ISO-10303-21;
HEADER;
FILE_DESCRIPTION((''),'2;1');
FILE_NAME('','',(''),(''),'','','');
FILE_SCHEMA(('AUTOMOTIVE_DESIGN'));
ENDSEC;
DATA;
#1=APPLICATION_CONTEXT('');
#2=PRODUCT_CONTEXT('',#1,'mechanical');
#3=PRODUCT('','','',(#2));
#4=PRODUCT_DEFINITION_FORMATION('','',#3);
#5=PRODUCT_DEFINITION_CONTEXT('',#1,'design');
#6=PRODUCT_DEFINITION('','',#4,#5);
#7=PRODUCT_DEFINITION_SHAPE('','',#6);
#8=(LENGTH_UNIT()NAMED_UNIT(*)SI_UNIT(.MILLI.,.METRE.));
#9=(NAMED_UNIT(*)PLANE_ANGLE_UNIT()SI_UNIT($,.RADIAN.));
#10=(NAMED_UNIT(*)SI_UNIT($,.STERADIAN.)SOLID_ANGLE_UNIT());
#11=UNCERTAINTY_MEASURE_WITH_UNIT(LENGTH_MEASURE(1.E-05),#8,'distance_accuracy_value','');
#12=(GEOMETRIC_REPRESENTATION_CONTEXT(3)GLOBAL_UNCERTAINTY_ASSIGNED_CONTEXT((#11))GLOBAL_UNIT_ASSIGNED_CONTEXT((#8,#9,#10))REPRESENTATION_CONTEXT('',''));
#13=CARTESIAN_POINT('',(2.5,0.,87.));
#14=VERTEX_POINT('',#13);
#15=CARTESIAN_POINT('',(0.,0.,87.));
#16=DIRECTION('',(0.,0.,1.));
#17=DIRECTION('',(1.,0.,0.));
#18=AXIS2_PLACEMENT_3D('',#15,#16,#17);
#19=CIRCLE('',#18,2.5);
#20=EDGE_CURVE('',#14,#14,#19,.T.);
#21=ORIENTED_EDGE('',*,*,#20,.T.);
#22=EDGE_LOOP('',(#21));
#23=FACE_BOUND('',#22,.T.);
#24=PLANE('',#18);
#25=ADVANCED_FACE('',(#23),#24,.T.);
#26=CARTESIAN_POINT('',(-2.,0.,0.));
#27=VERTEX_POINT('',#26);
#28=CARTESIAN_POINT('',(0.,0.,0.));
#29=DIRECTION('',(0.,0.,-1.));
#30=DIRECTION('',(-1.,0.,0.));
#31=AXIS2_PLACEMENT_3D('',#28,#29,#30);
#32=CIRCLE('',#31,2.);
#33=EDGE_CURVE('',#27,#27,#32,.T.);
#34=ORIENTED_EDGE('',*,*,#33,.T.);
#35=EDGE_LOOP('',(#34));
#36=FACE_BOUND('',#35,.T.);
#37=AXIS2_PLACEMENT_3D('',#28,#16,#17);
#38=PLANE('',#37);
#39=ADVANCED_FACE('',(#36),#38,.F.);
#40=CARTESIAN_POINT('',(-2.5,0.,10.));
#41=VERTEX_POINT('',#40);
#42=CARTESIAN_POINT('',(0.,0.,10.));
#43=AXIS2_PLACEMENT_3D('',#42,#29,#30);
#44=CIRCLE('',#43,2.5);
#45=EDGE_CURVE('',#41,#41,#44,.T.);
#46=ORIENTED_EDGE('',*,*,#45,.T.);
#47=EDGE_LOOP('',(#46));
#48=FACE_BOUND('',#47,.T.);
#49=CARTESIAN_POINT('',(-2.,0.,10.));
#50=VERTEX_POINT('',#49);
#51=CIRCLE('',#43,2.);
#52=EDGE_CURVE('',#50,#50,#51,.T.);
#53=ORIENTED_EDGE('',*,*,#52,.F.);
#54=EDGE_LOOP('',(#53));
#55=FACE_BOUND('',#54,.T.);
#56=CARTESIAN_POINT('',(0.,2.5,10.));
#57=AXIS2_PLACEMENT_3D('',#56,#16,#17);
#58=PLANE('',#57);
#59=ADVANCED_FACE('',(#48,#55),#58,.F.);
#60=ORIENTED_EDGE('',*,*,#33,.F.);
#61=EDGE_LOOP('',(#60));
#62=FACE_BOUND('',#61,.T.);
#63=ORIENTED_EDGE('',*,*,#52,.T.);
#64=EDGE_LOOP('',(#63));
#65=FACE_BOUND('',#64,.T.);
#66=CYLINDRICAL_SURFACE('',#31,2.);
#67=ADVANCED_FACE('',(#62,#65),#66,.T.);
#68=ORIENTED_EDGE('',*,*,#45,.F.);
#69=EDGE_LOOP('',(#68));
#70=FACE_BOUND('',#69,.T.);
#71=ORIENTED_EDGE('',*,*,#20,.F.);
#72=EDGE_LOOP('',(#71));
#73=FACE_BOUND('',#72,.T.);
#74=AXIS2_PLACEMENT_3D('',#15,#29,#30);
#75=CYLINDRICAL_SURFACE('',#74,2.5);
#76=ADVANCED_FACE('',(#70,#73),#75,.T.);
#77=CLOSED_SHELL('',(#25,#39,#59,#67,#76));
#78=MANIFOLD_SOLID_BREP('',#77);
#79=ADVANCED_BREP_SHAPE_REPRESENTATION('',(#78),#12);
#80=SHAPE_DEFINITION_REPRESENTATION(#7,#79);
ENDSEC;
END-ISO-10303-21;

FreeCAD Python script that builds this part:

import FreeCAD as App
import Part
import Sketcher

V = App.Vector
Q = App.Units.Quantity


def add_polygon(sketch, points):
    """Adds a closed chain of lines whose ends are joined by coincident constraints."""
    first, n = sketch.GeometryCount, len(points)
    for a, b in zip(points, points[1:] + points[:1]):
        sketch.addGeometry(Part.LineSegment(App.Vector(*a, 0), App.Vector(*b, 0)), False)
    for i in range(n):
        sketch.addConstraint(Sketcher.Constraint("Coincident", first + i, 2, first + (i + 1) % n, 1))

doc = App.newDocument("Part")
params = doc.addObject("Spreadsheet::Sheet", "Params")
for row, (alias, value) in enumerate([
    ("sketch1_diameter", "5 mm"),
    ("pad1_length", "87 mm"),
    ("sketch2_height", "10 mm"),
    ("sketch2_width", "0.5 mm"),
    ("groove_angle", "360 deg"),
], start=1):
    params.set(f"A{row}", alias)
    params.set(f"B{row}", "=" + value)
    params.setAlias(f"B{row}", alias)

body = doc.addObject("PartDesign::Body", "Body")

# Sketch on XY plane
sketch1 = doc.addObject("Sketcher::SketchObject", "Sketch")
body.addObject(sketch1)
sketch1.AttachmentSupport = (doc.XY_Plane, [""])
sketch1.MapMode = "FlatFace"
sketch1.addGeometry(Part.Circle(V(0, 0, 0), V(0, 0, 1), 2.5), False)
sketch1.addConstraint(Sketcher.Constraint("Coincident", 0, 3, -1, 1))
sketch1.addConstraint(Sketcher.Constraint("Diameter", 0, Q("5 mm")))
sketch1.setExpression("Constraints[1]", "Params.sketch1_diameter")
pad1 = doc.addObject("PartDesign::Pad", "Pad")
body.addObject(pad1)
pad1.Profile = sketch1
pad1.setExpression("Length", "Params.pad1_length")

# Sketch on YZ plane
sketch2 = doc.addObject("Sketcher::SketchObject", "Sketch001")
body.addObject(sketch2)
sketch2.AttachmentSupport = (doc.YZ_Plane, [""])
sketch2.MapMode = "FlatFace"
add_polygon(sketch2, [(2.5, 10), (2, 10), (2, 0), (2.5, 0)])  # lines 0-3
sketch2.addConstraint(Sketcher.Constraint("Horizontal", 0))
sketch2.addConstraint(Sketcher.Constraint("Vertical", 1))
sketch2.addConstraint(Sketcher.Constraint("Horizontal", 2))
sketch2.addConstraint(Sketcher.Constraint("Vertical", 3))
sketch2.addConstraint(Sketcher.Constraint("PointOnObject", 1, 2, -1))
sketch2.addConstraint(Sketcher.Constraint("DistanceY", 1, 2, 1, 1, Q("10 mm")))
sketch2.addConstraint(Sketcher.Constraint("DistanceX", 0, 2, 0, 1, Q("0.5 mm")))
sketch2.addConstraint(Sketcher.Constraint("DistanceX", -1, 1, 0, 2, Q("2 mm")))
sketch2.setExpression("Constraints[9]", "Params.sketch2_height")
sketch2.setExpression("Constraints[10]", "Params.sketch2_width")
groove = doc.addObject("PartDesign::Groove", "Groove")
body.addObject(groove)
groove.Profile = sketch2
groove.ReferenceAxis = (sketch2, ["V_Axis"])
groove.setExpression("Angle", "Params.groove_angle")

doc.recompute()
